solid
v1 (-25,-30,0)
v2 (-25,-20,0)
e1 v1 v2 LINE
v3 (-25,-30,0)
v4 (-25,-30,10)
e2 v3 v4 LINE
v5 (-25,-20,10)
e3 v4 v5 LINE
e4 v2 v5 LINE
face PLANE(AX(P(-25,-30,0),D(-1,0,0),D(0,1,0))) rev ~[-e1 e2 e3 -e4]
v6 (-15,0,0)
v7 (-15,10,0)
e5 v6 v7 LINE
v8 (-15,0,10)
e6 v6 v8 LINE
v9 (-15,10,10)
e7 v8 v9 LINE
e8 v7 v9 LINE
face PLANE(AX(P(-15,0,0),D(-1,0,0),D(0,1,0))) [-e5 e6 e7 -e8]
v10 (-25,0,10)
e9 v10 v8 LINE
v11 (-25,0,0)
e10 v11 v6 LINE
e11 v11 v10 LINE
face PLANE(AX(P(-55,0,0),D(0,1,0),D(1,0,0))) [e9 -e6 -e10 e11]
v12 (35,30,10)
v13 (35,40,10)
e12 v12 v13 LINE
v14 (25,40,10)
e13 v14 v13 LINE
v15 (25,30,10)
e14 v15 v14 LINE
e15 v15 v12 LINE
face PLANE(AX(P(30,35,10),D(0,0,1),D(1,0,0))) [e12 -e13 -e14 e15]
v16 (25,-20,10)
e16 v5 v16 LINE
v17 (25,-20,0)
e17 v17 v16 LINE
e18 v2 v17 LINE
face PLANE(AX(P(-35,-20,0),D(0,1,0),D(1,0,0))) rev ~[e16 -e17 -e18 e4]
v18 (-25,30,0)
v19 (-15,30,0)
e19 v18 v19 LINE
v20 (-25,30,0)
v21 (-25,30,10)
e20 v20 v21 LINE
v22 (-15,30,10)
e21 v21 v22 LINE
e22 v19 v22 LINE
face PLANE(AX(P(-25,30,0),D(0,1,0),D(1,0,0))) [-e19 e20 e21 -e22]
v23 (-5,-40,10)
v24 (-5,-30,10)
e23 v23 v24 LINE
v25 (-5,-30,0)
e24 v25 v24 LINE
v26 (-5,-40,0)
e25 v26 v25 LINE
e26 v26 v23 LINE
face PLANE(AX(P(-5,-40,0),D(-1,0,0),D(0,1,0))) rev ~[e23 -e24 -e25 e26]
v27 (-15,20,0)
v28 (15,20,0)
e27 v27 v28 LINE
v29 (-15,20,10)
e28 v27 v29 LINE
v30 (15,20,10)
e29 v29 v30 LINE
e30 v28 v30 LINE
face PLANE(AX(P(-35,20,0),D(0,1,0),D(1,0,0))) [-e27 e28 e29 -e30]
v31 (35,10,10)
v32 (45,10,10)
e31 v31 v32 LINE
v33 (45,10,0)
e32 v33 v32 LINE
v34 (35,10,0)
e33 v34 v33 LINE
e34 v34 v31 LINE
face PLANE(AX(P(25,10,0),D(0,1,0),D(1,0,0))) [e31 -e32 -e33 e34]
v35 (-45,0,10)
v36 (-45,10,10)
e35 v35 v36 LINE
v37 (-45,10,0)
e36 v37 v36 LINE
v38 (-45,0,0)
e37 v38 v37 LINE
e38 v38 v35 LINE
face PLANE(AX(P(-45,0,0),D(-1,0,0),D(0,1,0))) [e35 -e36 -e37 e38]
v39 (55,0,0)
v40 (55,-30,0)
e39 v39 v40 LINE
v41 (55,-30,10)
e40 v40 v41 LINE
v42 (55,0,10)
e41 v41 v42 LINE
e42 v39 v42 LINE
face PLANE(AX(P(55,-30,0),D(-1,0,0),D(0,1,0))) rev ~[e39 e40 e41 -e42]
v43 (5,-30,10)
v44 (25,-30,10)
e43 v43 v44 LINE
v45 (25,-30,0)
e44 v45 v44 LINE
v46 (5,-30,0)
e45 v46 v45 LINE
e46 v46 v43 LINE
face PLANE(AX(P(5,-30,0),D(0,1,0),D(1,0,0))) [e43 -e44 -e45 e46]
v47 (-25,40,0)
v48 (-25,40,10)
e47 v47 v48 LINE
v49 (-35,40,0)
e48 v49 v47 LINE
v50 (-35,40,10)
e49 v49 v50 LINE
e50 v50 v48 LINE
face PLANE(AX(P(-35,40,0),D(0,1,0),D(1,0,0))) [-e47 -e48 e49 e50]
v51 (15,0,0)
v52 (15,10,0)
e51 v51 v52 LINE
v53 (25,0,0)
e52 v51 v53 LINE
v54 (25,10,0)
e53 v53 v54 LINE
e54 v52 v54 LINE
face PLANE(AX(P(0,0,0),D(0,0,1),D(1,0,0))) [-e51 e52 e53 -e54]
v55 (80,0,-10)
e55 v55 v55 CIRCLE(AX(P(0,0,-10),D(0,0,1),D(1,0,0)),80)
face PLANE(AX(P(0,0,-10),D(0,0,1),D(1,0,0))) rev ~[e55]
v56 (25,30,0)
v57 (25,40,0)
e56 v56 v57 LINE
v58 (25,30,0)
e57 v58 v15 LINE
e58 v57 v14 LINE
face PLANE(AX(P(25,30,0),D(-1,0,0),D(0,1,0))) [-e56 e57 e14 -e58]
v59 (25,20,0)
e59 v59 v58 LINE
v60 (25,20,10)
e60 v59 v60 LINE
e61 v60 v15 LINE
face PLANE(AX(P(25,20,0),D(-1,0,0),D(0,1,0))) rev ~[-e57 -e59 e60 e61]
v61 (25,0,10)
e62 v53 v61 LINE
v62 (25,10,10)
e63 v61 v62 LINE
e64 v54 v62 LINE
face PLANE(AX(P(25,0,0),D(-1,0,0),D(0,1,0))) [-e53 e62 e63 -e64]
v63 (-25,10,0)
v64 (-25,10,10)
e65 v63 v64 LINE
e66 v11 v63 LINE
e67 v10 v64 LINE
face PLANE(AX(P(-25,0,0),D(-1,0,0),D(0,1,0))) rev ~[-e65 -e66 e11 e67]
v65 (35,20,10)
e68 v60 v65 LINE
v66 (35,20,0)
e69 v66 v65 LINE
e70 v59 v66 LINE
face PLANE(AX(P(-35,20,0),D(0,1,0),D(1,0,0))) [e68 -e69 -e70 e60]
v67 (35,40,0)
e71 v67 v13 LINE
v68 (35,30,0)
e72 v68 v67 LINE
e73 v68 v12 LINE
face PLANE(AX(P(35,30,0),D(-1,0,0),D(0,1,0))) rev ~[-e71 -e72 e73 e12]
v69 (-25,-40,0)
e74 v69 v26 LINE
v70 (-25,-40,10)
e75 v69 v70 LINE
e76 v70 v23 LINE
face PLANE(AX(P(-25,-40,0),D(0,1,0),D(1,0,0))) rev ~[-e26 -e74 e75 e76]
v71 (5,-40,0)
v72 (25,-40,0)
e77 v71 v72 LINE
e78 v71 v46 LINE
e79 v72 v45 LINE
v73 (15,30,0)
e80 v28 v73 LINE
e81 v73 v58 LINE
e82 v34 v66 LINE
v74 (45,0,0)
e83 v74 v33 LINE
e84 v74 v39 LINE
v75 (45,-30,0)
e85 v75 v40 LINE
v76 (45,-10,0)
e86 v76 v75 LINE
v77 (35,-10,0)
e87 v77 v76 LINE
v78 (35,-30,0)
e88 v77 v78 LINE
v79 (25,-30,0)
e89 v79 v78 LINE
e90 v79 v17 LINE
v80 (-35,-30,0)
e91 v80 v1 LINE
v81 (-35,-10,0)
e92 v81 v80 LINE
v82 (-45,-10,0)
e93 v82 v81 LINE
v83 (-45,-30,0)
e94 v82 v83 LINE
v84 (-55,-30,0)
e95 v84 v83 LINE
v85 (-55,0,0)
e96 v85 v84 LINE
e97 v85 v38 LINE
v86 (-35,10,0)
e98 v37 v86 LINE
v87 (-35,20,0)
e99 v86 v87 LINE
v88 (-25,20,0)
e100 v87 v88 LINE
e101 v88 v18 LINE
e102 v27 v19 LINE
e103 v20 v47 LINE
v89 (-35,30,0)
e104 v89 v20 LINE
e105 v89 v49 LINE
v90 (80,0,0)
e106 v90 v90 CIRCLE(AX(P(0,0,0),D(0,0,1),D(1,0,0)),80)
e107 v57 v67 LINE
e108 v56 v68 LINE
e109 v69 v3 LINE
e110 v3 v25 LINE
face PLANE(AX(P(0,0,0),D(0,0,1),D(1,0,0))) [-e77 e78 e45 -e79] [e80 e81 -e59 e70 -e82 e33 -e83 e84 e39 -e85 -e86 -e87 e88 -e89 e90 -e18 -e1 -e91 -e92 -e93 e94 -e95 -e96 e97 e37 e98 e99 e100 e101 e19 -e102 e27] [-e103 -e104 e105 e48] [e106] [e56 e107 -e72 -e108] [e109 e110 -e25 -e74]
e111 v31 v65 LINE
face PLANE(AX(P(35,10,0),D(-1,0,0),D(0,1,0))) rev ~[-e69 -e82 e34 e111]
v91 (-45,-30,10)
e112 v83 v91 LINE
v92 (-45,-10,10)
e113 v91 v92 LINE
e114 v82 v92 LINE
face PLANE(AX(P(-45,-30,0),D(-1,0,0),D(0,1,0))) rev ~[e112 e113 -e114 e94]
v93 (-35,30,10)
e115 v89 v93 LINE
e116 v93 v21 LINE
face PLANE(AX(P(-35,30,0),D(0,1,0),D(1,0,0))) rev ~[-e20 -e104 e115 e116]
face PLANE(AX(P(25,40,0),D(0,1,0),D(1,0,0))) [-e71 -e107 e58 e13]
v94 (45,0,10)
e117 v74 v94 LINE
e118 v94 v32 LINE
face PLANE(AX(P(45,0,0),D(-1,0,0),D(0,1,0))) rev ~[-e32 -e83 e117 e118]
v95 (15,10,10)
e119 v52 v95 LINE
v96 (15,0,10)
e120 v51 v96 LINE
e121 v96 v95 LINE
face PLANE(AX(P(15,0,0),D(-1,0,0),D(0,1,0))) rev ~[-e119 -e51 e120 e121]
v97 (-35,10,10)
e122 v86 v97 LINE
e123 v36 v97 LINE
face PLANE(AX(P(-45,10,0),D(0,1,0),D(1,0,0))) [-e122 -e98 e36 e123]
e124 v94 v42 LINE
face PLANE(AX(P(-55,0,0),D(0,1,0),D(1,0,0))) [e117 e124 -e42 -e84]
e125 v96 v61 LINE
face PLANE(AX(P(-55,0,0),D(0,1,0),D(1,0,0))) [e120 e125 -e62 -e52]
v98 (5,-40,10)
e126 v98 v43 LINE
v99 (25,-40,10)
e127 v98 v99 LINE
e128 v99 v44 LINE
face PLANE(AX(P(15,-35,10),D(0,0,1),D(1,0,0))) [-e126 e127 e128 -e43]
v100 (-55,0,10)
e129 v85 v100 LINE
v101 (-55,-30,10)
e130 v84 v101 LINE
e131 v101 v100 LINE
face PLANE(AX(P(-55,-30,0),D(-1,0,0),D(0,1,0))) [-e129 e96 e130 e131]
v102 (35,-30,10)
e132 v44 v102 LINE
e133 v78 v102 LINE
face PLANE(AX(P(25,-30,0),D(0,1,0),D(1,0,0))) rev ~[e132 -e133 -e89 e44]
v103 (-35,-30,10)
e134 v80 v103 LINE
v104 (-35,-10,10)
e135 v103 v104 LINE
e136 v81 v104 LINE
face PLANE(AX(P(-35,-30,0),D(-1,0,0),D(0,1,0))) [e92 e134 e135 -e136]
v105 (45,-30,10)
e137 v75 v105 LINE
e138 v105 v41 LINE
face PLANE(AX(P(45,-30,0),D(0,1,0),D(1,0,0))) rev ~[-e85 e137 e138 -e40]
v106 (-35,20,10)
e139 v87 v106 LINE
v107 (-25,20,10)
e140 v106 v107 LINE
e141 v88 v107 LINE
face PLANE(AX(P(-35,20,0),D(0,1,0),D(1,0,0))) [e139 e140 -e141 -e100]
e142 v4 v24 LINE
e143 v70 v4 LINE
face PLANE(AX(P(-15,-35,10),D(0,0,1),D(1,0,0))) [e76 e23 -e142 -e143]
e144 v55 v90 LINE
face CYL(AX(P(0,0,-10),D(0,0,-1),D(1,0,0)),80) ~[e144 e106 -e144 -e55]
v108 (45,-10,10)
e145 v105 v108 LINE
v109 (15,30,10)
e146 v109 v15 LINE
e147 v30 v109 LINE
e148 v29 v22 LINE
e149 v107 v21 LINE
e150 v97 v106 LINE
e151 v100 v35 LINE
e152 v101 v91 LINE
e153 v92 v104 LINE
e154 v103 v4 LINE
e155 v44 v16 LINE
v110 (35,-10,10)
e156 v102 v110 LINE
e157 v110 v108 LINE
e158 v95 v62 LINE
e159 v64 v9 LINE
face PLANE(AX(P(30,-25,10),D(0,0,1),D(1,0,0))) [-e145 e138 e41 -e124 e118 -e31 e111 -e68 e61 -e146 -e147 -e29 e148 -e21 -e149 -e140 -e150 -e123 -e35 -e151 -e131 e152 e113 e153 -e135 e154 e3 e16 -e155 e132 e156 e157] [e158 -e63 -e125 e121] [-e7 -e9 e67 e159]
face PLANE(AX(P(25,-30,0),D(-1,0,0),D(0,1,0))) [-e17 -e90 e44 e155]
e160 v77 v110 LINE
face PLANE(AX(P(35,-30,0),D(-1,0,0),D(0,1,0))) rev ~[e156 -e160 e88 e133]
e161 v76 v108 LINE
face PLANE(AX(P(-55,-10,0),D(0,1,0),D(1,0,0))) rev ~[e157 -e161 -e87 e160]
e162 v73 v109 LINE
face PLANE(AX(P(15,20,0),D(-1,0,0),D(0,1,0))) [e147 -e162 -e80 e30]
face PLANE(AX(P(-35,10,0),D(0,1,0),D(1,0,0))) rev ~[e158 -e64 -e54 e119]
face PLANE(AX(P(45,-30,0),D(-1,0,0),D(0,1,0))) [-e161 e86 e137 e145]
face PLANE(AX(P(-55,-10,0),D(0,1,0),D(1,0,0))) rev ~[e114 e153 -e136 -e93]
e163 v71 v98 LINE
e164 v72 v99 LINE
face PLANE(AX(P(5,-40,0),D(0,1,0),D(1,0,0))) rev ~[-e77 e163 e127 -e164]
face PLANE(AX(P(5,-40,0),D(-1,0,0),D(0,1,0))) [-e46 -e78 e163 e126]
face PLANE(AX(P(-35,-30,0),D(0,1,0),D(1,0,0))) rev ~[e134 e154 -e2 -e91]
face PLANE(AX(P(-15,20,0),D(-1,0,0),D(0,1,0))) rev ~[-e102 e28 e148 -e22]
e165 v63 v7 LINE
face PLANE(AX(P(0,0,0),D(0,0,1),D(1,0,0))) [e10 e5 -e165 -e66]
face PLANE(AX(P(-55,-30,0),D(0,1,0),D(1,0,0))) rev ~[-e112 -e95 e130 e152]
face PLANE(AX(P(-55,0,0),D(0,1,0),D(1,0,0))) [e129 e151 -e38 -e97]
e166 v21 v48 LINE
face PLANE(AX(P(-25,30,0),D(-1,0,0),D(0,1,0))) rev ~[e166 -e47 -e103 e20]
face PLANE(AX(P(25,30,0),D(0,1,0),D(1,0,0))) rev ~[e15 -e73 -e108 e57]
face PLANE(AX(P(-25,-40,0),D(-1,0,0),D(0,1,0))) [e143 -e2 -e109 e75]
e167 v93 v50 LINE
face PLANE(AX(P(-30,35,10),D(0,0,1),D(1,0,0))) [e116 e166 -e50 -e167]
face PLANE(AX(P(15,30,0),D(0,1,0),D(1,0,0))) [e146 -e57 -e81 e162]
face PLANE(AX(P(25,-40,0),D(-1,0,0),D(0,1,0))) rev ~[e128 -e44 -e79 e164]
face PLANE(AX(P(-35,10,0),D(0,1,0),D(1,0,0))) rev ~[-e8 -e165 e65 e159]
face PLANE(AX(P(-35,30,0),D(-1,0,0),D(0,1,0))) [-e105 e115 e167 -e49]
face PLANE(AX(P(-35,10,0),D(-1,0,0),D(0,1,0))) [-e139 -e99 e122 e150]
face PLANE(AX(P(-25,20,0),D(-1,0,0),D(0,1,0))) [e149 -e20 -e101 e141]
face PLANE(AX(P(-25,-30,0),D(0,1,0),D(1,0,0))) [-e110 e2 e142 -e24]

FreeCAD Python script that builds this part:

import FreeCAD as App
import Part
import Sketcher
from FreeCAD import Vector

doc = App.newDocument("Part")
body = doc.addObject("PartDesign::Body", "Body")

sketch1 = body.newObject("Sketcher::SketchObject", "Sketch")
sketch1.AttachmentSupport = (doc.getObject("XY_Plane"), [""])
sketch1.MapMode = "FlatFace"
sketch1.AttachmentOffset = App.Placement(Vector(0, 0, -10), App.Rotation())
sketch1.addGeometry(Part.Circle(Vector(0, 0, 0), Vector(0, 0, 1), 80), False)
sketch1.addConstraint([
    Sketcher.Constraint("Coincident", 0, 3, -1, 1),
    Sketcher.Constraint("Diameter", 0, 160.0),
])
pad1 = body.newObject("PartDesign::Pad", "Pad")
pad1.Profile = sketch1
pad1.Length = 10
body2 = doc.addObject("PartDesign::Body", "Body001")

sketch2 = body2.newObject("Sketcher::SketchObject", "Sketch001")
sketch2.AttachmentSupport = (doc.getObject("XY_Plane001"), [""])
sketch2.MapMode = "FlatFace"
sketch2.addGeometry([
    Part.LineSegment(Vector(50, 0, 0), Vector(50, -10, 0)),
    Part.LineSegment(Vector(50, -10, 0), Vector(60, -10, 0)),
    Part.LineSegment(Vector(60, -10, 0), Vector(60, 0, 0)),
    Part.LineSegment(Vector(60, 0, 0), Vector(50, 0, 0)),
], False)
sketch2.addConstraint([
    Sketcher.Constraint("Coincident", 0, 2, 1, 1),
    Sketcher.Constraint("Coincident", 1, 2, 2, 1),
    Sketcher.Constraint("Coincident", 2, 2, 3, 1),
    Sketcher.Constraint("Coincident", 3, 2, 0, 1),
    Sketcher.Constraint("Vertical", 0),
    Sketcher.Constraint("Horizontal", 1),
    Sketcher.Constraint("Vertical", 2),
    Sketcher.Constraint("Horizontal", 3),
    Sketcher.Constraint("PointOnObject", 2, 2, -1),
    Sketcher.Constraint("Equal", 3, 0),
    Sketcher.Constraint("DistanceX", 1, 1, 1, 2, 10.0),
    Sketcher.Constraint("DistanceX", -1, 1, 0, 2, 50.0),
])
pad2 = body2.newObject("PartDesign::Pad", "Pad001")
pad2.Profile = sketch2
pad2.Length = 10
body3 = doc.addObject("PartDesign::Body", "Body002")

sketch3 = body3.newObject("Sketcher::SketchObject", "Sketch002")
sketch3.AttachmentSupport = (doc.getObject("XY_Plane002"), [""])
sketch3.MapMode = "FlatFace"
sketch3.addGeometry([
    Part.LineSegment(Vector(-10, -20, 0), Vector(-10, -30, 0)),
    Part.LineSegment(Vector(-10, -30, 0), Vector(10, -30, 0)),
    Part.LineSegment(Vector(10, -30, 0), Vector(10, -20, 0)),
    Part.LineSegment(Vector(10, -20, 0), Vector(-10, -20, 0)),
], False)
sketch3.addConstraint([
    Sketcher.Constraint("Coincident", 0, 2, 1, 1),
    Sketcher.Constraint("Coincident", 1, 2, 2, 1),
    Sketcher.Constraint("Coincident", 2, 2, 3, 1),
    Sketcher.Constraint("Coincident", 3, 2, 0, 1),
    Sketcher.Constraint("Vertical", 0),
    Sketcher.Constraint("Horizontal", 1),
    Sketcher.Constraint("Vertical", 2),
    Sketcher.Constraint("Horizontal", 3),
    Sketcher.Constraint("DistanceX", 1, 1, 1, 2, 20.0),
    Sketcher.Constraint("DistanceY", 0, 2, 0, 1, 10.0),
    Sketcher.Constraint("DistanceX", 0, 2, -1, 1, 10.0),
    Sketcher.Constraint("DistanceY", 0, 2, -1, 1, 30.0),
])
pad3 = body3.newObject("PartDesign::Pad", "Pad002")
pad3.Profile = sketch3
pad3.Length = 10
body4 = doc.addObject("PartDesign::Body", "Body003")

sketch4 = body4.newObject("Sketcher::SketchObject", "Sketch003")
sketch4.AttachmentSupport = (doc.getObject("XY_Plane003"), [""])
sketch4.MapMode = "FlatFace"
sketch4.addGeometry([
    Part.LineSegment(Vector(0, -40, 0), Vector(0, -50, 0)),
    Part.LineSegment(Vector(0, -50, 0), Vector(70, -50, 0)),
    Part.LineSegment(Vector(70, -50, 0), Vector(70, -40, 0)),
    Part.LineSegment(Vector(70, -40, 0), Vector(0, -40, 0)),
], False)
sketch4.addConstraint([
    Sketcher.Constraint("Coincident", 0, 2, 1, 1),
    Sketcher.Constraint("Coincident", 1, 2, 2, 1),
    Sketcher.Constraint("Coincident", 2, 2, 3, 1),
    Sketcher.Constraint("Coincident", 3, 2, 0, 1),
    Sketcher.Constraint("Vertical", 0),
    Sketcher.Constraint("Horizontal", 1),
    Sketcher.Constraint("Vertical", 2),
    Sketcher.Constraint("Horizontal", 3),
    Sketcher.Constraint("PointOnObject", 0, 2, -2),
    Sketcher.Constraint("DistanceX", 1, 1, 1, 2, 70.0),
    Sketcher.Constraint("DistanceY", 0, 2, 0, 1, 10.0),
    Sketcher.Constraint("DistanceY", 0, 2, -1, 1, 50.0),
])
pad4 = body4.newObject("PartDesign::Pad", "Pad003")
pad4.Profile = sketch4
pad4.Length = 10
body5 = doc.addObject("PartDesign::Body", "Body004")

sketch5 = body5.newObject("Sketcher::SketchObject", "Sketch004")
sketch5.AttachmentSupport = (doc.getObject("XY_Plane004"), [""])
sketch5.MapMode = "FlatFace"
sketch5.addGeometry([
    Part.LineSegment(Vector(40, -60, 0), Vector(40, -70, 0)),
    Part.LineSegment(Vector(40, -70, 0), Vector(60, -70, 0)),
    Part.LineSegment(Vector(60, -70, 0), Vector(60, -60, 0)),
    Part.LineSegment(Vector(60, -60, 0), Vector(40, -60, 0)),
], False)
sketch5.addConstraint([
    Sketcher.Constraint("Coincident", 0, 2, 1, 1),
    Sketcher.Constraint("Coincident", 1, 2, 2, 1),
    Sketcher.Constraint("Coincident", 2, 2, 3, 1),
    Sketcher.Constraint("Coincident", 3, 2, 0, 1),
    Sketcher.Constraint("Vertical", 0),
    Sketcher.Constraint("Horizontal", 1),
    Sketcher.Constraint("Vertical", 2),
    Sketcher.Constraint("Horizontal", 3),
    Sketcher.Constraint("DistanceX", 1, 1, 1, 2, 20.0),
    Sketcher.Constraint("DistanceY", 0, 2, 0, 1, 10.0),
    Sketcher.Constraint("DistanceX", -1, 1, 0, 2, 40.0),
    Sketcher.Constraint("DistanceY", 0, 2, -1, 1, 70.0),
])
pad5 = body5.newObject("PartDesign::Pad", "Pad004")
pad5.Profile = sketch5
pad5.Length = 10
body6 = doc.addObject("PartDesign::Body", "Body005")

sketch6 = body6.newObject("Sketcher::SketchObject", "Sketch005")
sketch6.AttachmentSupport = (doc.getObject("XY_Plane005"), [""])
sketch6.MapMode = "FlatFace"
sketch6.addGeometry([
    Part.LineSegment(Vector(10, 0, 0), Vector(10, -10, 0)),
    Part.LineSegment(Vector(10, -10, 0), Vector(20, -10, 0)),
    Part.LineSegment(Vector(20, -10, 0), Vector(20, 0, 0)),
    Part.LineSegment(Vector(20, 0, 0), Vector(10, 0, 0)),
], False)
sketch6.addConstraint([
    Sketcher.Constraint("Coincident", 0, 2, 1, 1),
    Sketcher.Constraint("Coincident", 1, 2, 2, 1),
    Sketcher.Constraint("Coincident", 2, 2, 3, 1),
    Sketcher.Constraint("Coincident", 3, 2, 0, 1),
    Sketcher.Constraint("Vertical", 0),
    Sketcher.Constraint("Horizontal", 1),
    Sketcher.Constraint("Vertical", 2),
    Sketcher.Constraint("Horizontal", 3),
    Sketcher.Constraint("PointOnObject", 2, 2, -1),
    Sketcher.Constraint("Equal", 3, 0),
    Sketcher.Constraint("DistanceX", 1, 1, 1, 2, 10.0),
    Sketcher.Constraint("DistanceX", -1, 1, 0, 2, 10.0),
])
pad6 = body6.newObject("PartDesign::Pad", "Pad005")
pad6.Profile = sketch6
pad6.Length = 10
body7 = doc.addObject("PartDesign::Body", "Body006")

sketch7 = body7.newObject("Sketcher::SketchObject", "Sketch006")
sketch7.AttachmentSupport = (doc.getObject("XY_Plane006"), [""])
sketch7.MapMode = "FlatFace"
sketch7.addGeometry([
    Part.LineSegment(Vector(-20, -30, 0), Vector(-20, -40, 0)),
    Part.LineSegment(Vector(-20, -40, 0), Vector(90, -40, 0)),
    Part.LineSegment(Vector(90, -40, 0), Vector(90, -30, 0)),
    Part.LineSegment(Vector(90, -30, 0), Vector(-20, -30, 0)),
], False)
sketch7.addConstraint([
    Sketcher.Constraint("Coincident", 0, 2, 1, 1),
    Sketcher.Constraint("Coincident", 1, 2, 2, 1),
    Sketcher.Constraint("Coincident", 2, 2, 3, 1),
    Sketcher.Constraint("Coincident", 3, 2, 0, 1),
    Sketcher.Constraint("Vertical", 0),
    Sketcher.Constraint("Horizontal", 1),
    Sketcher.Constraint("Vertical", 2),
    Sketcher.Constraint("Horizontal", 3),
    Sketcher.Constraint("DistanceX", 1, 1, 1, 2, 110.0),
    Sketcher.Constraint("DistanceY", 0, 2, 0, 1, 10.0),
    Sketcher.Constraint("DistanceX", 0, 2, -1, 1, 20.0),
    Sketcher.Constraint("DistanceY", 0, 2, -1, 1, 40.0),
])
pad7 = body7.newObject("PartDesign::Pad", "Pad006")
pad7.Profile = sketch7
pad7.Length = 10
body8 = doc.addObject("PartDesign::Body", "Body007")

sketch8 = body8.newObject("Sketcher::SketchObject", "Sketch007")
sketch8.AttachmentSupport = (doc.getObject("XY_Plane007"), [""])
sketch8.MapMode = "FlatFace"
sketch8.addGeometry([
    Part.LineSegment(Vector(-20, -40, 0), Vector(-20, -50, 0)),
    Part.LineSegment(Vector(-20, -50, 0), Vector(-10, -50, 0)),
    Part.LineSegment(Vector(-10, -50, 0), Vector(-10, -40, 0)),
    Part.LineSegment(Vector(-10, -40, 0), Vector(-20, -40, 0)),
], False)
sketch8.addConstraint([
    Sketcher.Constraint("Coincident", 0, 2, 1, 1),
    Sketcher.Constraint("Coincident", 1, 2, 2, 1),
    Sketcher.Constraint("Coincident", 2, 2, 3, 1),
    Sketcher.Constraint("Coincident", 3, 2, 0, 1),
    Sketcher.Constraint("Vertical", 0),
    Sketcher.Constraint("Horizontal", 1),
    Sketcher.Constraint("Vertical", 2),
    Sketcher.Constraint("Horizontal", 3),
    Sketcher.Constraint("Equal", 3, 0),
    Sketcher.Constraint("DistanceX", 1, 1, 1, 2, 10.0),
    Sketcher.Constraint("DistanceX", 0, 2, -1, 1, 20.0),
    Sketcher.Constraint("DistanceY", 0, 2, -1, 1, 50.0),
])
pad8 = body8.newObject("PartDesign::Pad", "Pad007")
pad8.Profile = sketch8
pad8.Length = 10
body9 = doc.addObject("PartDesign::Body", "Body008")

sketch9 = body9.newObject("Sketcher::SketchObject", "Sketch008")
sketch9.AttachmentSupport = (doc.getObject("XY_Plane008"), [""])
sketch9.MapMode = "FlatFace"
sketch9.addGeometry([
    Part.LineSegment(Vector(80, -40, 0), Vector(80, -50, 0)),
    Part.LineSegment(Vector(80, -50, 0), Vector(90, -50, 0)),
    Part.LineSegment(Vector(90, -50, 0), Vector(90, -40, 0)),
    Part.LineSegment(Vector(90, -40, 0), Vector(80, -40, 0)),
], False)
sketch9.addConstraint([
    Sketcher.Constraint("Coincident", 0, 2, 1, 1),
    Sketcher.Constraint("Coincident", 1, 2, 2, 1),
    Sketcher.Constraint("Coincident", 2, 2, 3, 1),
    Sketcher.Constraint("Coincident", 3, 2, 0, 1),
    Sketcher.Constraint("Vertical", 0),
    Sketcher.Constraint("Horizontal", 1),
    Sketcher.Constraint("Vertical", 2),
    Sketcher.Constraint("Horizontal", 3),
    Sketcher.Constraint("Equal", 3, 0),
    Sketcher.Constraint("DistanceX", 1, 1, 1, 2, 10.0),
    Sketcher.Constraint("DistanceX", -1, 1, 0, 2, 80.0),
    Sketcher.Constraint("DistanceY", 0, 2, -1, 1, 50.0),
])
pad9 = body9.newObject("PartDesign::Pad", "Pad008")
pad9.Profile = sketch9
pad9.Length = 10
body10 = doc.addObject("PartDesign::Body", "Body009")

sketch10 = body10.newObject("Sketcher::SketchObject", "Sketch009")
sketch10.AttachmentSupport = (doc.getObject("XY_Plane009"), [""])
sketch10.MapMode = "FlatFace"
sketch10.addGeometry([
    Part.LineSegment(Vector(10, -60, 0), Vector(10, -70, 0)),
    Part.LineSegment(Vector(10, -70, 0), Vector(30, -70, 0)),
    Part.LineSegment(Vector(30, -70, 0), Vector(30, -60, 0)),
    Part.LineSegment(Vector(30, -60, 0), Vector(10, -60, 0)),
], False)
sketch10.addConstraint([
    Sketcher.Constraint("Coincident", 0, 2, 1, 1),
    Sketcher.Constraint("Coincident", 1, 2, 2, 1),
    Sketcher.Constraint("Coincident", 2, 2, 3, 1),
    Sketcher.Constraint("Coincident", 3, 2, 0, 1),
    Sketcher.Constraint("Vertical", 0),
    Sketcher.Constraint("Horizontal", 1),
    Sketcher.Constraint("Vertical", 2),
    Sketcher.Constraint("Horizontal", 3),
    Sketcher.Constraint("DistanceX", 1, 1, 1, 2, 20.0),
    Sketcher.Constraint("DistanceY", 0, 2, 0, 1, 10.0),
    Sketcher.Constraint("DistanceX", -1, 1, 0, 2, 10.0),
    Sketcher.Constraint("DistanceY", 0, 2, -1, 1, 70.0),
])
pad10 = body10.newObject("PartDesign::Pad", "Pad009")
pad10.Profile = sketch10
pad10.Length = 10
body11 = doc.addObject("PartDesign::Body", "Body010")

sketch11 = body11.newObject("Sketcher::SketchObject", "Sketch010")
sketch11.AttachmentSupport = (doc.getObject("XY_Plane010"), [""])
sketch11.MapMode = "FlatFace"
sketch11.addGeometry([
    Part.LineSegment(Vector(20, -20, 0), Vector(20, -30, 0)),
    Part.LineSegment(Vector(20, -30, 0), Vector(50, -30, 0)),
    Part.LineSegment(Vector(50, -30, 0), Vector(50, -20, 0)),
    Part.LineSegment(Vector(50, -20, 0), Vector(20, -20, 0)),
], False)
sketch11.addConstraint([
    Sketcher.Constraint("Coincident", 0, 2, 1, 1),
    Sketcher.Constraint("Coincident", 1, 2, 2, 1),
    Sketcher.Constraint("Coincident", 2, 2, 3, 1),
    Sketcher.Constraint("Coincident", 3, 2, 0, 1),
    Sketcher.Constraint("Vertical", 0),
    Sketcher.Constraint("Horizontal", 1),
    Sketcher.Constraint("Vertical", 2),
    Sketcher.Constraint("Horizontal", 3),
    Sketcher.Constraint("DistanceX", 1, 1, 1, 2, 30.0),
    Sketcher.Constraint("DistanceY", 0, 2, 0, 1, 10.0),
    Sketcher.Constraint("DistanceX", -1, 1, 0, 2, 20.0),
    Sketcher.Constraint("DistanceY", 0, 2, -1, 1, 30.0),
])
pad11 = body11.newObject("PartDesign::Pad", "Pad010")
pad11.Profile = sketch11
pad11.Length = 10
body12 = doc.addObject("PartDesign::Body", "Body011")

sketch12 = body12.newObject("Sketcher::SketchObject", "Sketch011")
sketch12.AttachmentSupport = (doc.getObject("XY_Plane011"), [""])
sketch12.MapMode = "FlatFace"
sketch12.addGeometry([
    Part.LineSegment(Vector(0, -50, 0), Vector(0, -60, 0)),
    Part.LineSegment(Vector(0, -60, 0), Vector(10, -60, 0)),
    Part.LineSegment(Vector(10, -60, 0), Vector(10, -50, 0)),
    Part.LineSegment(Vector(10, -50, 0), Vector(0, -50, 0)),
], False)
sketch12.addConstraint([
    Sketcher.Constraint("Coincident", 0, 2, 1, 1),
    Sketcher.Constraint("Coincident", 1, 2, 2, 1),
    Sketcher.Constraint("Coincident", 2, 2, 3, 1),
    Sketcher.Constraint("Coincident", 3, 2, 0, 1),
    Sketcher.Constraint("Vertical", 0),
    Sketcher.Constraint("Horizontal", 1),
    Sketcher.Constraint("Vertical", 2),
    Sketcher.Constraint("Horizontal", 3),
    Sketcher.Constraint("PointOnObject", 0, 2, -2),
    Sketcher.Constraint("Equal", 3, 0),
    Sketcher.Constraint("DistanceX", 1, 1, 1, 2, 10.0),
    Sketcher.Constraint("DistanceY", 0, 2, -1, 1, 60.0),
])
pad12 = body12.newObject("PartDesign::Pad", "Pad011")
pad12.Profile = sketch12
pad12.Length = 10
body13 = doc.addObject("PartDesign::Body", "Body012")

sketch13 = body13.newObject("Sketcher::SketchObject", "Sketch012")
sketch13.AttachmentSupport = (doc.getObject("XY_Plane012"), [""])
sketch13.MapMode = "FlatFace"
sketch13.addGeometry([
    Part.LineSegment(Vector(80, -50, 0), Vector(80, -60, 0)),
    Part.LineSegment(Vector(80, -60, 0), Vector(90, -60, 0)),
    Part.LineSegment(Vector(90, -60, 0), Vector(90, -50, 0)),
    Part.LineSegment(Vector(90, -50, 0), Vector(80, -50, 0)),
], False)
sketch13.addConstraint([
    Sketcher.Constraint("Coincident", 0, 2, 1, 1),
    Sketcher.Constraint("Coincident", 1, 2, 2, 1),
    Sketcher.Constraint("Coincident", 2, 2, 3, 1),
    Sketcher.Constraint("Coincident", 3, 2, 0, 1),
    Sketcher.Constraint("Vertical", 0),
    Sketcher.Constraint("Horizontal", 1),
    Sketcher.Constraint("Vertical", 2),
    Sketcher.Constraint("Horizontal", 3),
    Sketcher.Constraint("Equal", 3, 0),
    Sketcher.Constraint("DistanceX", 1, 1, 1, 2, 10.0),
    Sketcher.Constraint("DistanceX", -1, 1, 0, 2, 80.0),
    Sketcher.Constraint("DistanceY", 0, 2, -1, 1, 60.0),
])
pad13 = body13.newObject("PartDesign::Pad", "Pad012")
pad13.Profile = sketch13
pad13.Length = 10
body14 = doc.addObject("PartDesign::Body", "Body013")

sketch14 = body14.newObject("Sketcher::SketchObject", "Sketch013")
sketch14.AttachmentSupport = (doc.getObject("XY_Plane013"), [""])
sketch14.MapMode = "FlatFace"
sketch14.addGeometry([
    Part.LineSegment(Vector(60, -20, 0), Vector(60, -30, 0)),
    Part.LineSegment(Vector(60, -30, 0), Vector(80, -30, 0)),
    Part.LineSegment(Vector(80, -30, 0), Vector(80, -20, 0)),
    Part.LineSegment(Vector(80, -20, 0), Vector(60, -20, 0)),
], False)
sketch14.addConstraint([
    Sketcher.Constraint("Coincident", 0, 2, 1, 1),
    Sketcher.Constraint("Coincident", 1, 2, 2, 1),
    Sketcher.Constraint("Coincident", 2, 2, 3, 1),
    Sketcher.Constraint("Coincident", 3, 2, 0, 1),
    Sketcher.Constraint("Vertical", 0),
    Sketcher.Constraint("Horizontal", 1),
    Sketcher.Constraint("Vertical", 2),
    Sketcher.Constraint("Horizontal", 3),
    Sketcher.Constraint("DistanceX", 1, 1, 1, 2, 20.0),
    Sketcher.Constraint("DistanceY", 0, 2, 0, 1, 10.0),
    Sketcher.Constraint("DistanceX", -1, 1, 0, 2, 60.0),
    Sketcher.Constraint("DistanceY", 0, 2, -1, 1, 30.0),
])
pad14 = body14.newObject("PartDesign::Pad", "Pad013")
pad14.Profile = sketch14
pad14.Length = 10
body15 = doc.addObject("PartDesign::Body", "Body014")

sketch15 = body15.newObject("Sketcher::SketchObject", "Sketch014")
sketch15.AttachmentSupport = (doc.getObject("XY_Plane014"), [""])
sketch15.MapMode = "FlatFace"
sketch15.addGeometry([
    Part.LineSegment(Vector(-20, -50, 0), Vector(-20, -60, 0)),
    Part.LineSegment(Vector(-20, -60, 0), Vector(-10, -60, 0)),
    Part.LineSegment(Vector(-10, -60, 0), Vector(-10, -50, 0)),
    Part.LineSegment(Vector(-10, -50, 0), Vector(-20, -50, 0)),
], False)
sketch15.addConstraint([
    Sketcher.Constraint("Coincident", 0, 2, 1, 1),
    Sketcher.Constraint("Coincident", 1, 2, 2, 1),
    Sketcher.Constraint("Coincident", 2, 2, 3, 1),
    Sketcher.Constraint("Coincident", 3, 2, 0, 1),
    Sketcher.Constraint("Vertical", 0),
    Sketcher.Constraint("Horizontal", 1),
    Sketcher.Constraint("Vertical", 2),
    Sketcher.Constraint("Horizontal", 3),
    Sketcher.Constraint("Equal", 3, 0),
    Sketcher.Constraint("DistanceX", 1, 1, 1, 2, 10.0),
    Sketcher.Constraint("DistanceX", 0, 2, -1, 1, 20.0),
    Sketcher.Constraint("DistanceY", 0, 2, -1, 1, 60.0),
])
pad15 = body15.newObject("PartDesign::Pad", "Pad014")
pad15.Profile = sketch15
pad15.Length = 10
body16 = doc.addObject("PartDesign::Body", "Body015")

sketch16 = body16.newObject("Sketcher::SketchObject", "Sketch015")
sketch16.AttachmentSupport = (doc.getObject("XY_Plane015"), [""])
sketch16.MapMode = "FlatFace"
sketch16.addGeometry([
    Part.LineSegment(Vector(0, -10, 0), Vector(0, -20, 0)),
    Part.LineSegment(Vector(0, -20, 0), Vector(70, -20, 0)),
    Part.LineSegment(Vector(70, -20, 0), Vector(70, -10, 0)),
    Part.LineSegment(Vector(70, -10, 0), Vector(0, -10, 0)),
], False)
sketch16.addConstraint([
    Sketcher.Constraint("Coincident", 0, 2, 1, 1),
    Sketcher.Constraint("Coincident", 1, 2, 2, 1),
    Sketcher.Constraint("Coincident", 2, 2, 3, 1),
    Sketcher.Constraint("Coincident", 3, 2, 0, 1),
    Sketcher.Constraint("Vertical", 0),
    Sketcher.Constraint("Horizontal", 1),
    Sketcher.Constraint("Vertical", 2),
    Sketcher.Constraint("Horizontal", 3),
    Sketcher.Constraint("PointOnObject", 0, 2, -2),
    Sketcher.Constraint("DistanceX", 1, 1, 1, 2, 70.0),
    Sketcher.Constraint("DistanceY", 0, 2, 0, 1, 10.0),
    Sketcher.Constraint("DistanceY", 0, 2, -1, 1, 20.0),
])
pad16 = body16.newObject("PartDesign::Pad", "Pad015")
pad16.Profile = sketch16
pad16.Length = 10
body17 = doc.addObject("PartDesign::Body", "Body016")

sketch17 = body17.newObject("Sketcher::SketchObject", "Sketch016")
sketch17.AttachmentSupport = (doc.getObject("XY_Plane016"), [""])
sketch17.MapMode = "FlatFace"
sketch17.addGeometry([
    Part.LineSegment(Vector(60, -50, 0), Vector(60, -60, 0)),
    Part.LineSegment(Vector(60, -60, 0), Vector(70, -60, 0)),
    Part.LineSegment(Vector(70, -60, 0), Vector(70, -50, 0)),
    Part.LineSegment(Vector(70, -50, 0), Vector(60, -50, 0)),
], False)
sketch17.addConstraint([
    Sketcher.Constraint("Coincident", 0, 2, 1, 1),
    Sketcher.Constraint("Coincident", 1, 2, 2, 1),
    Sketcher.Constraint("Coincident", 2, 2, 3, 1),
    Sketcher.Constraint("Coincident", 3, 2, 0, 1),
    Sketcher.Constraint("Vertical", 0),
    Sketcher.Constraint("Horizontal", 1),
    Sketcher.Constraint("Vertical", 2),
    Sketcher.Constraint("Horizontal", 3),
    Sketcher.Constraint("Equal", 3, 0),
    Sketcher.Constraint("DistanceX", 1, 1, 1, 2, 10.0),
    Sketcher.Constraint("DistanceX", -1, 1, 0, 2, 60.0),
    Sketcher.Constraint("DistanceY", 0, 2, -1, 1, 60.0),
])
pad17 = body17.newObject("PartDesign::Pad", "Pad016")
pad17.Profile = sketch17
pad17.Length = 10
body18 = doc.addObject("PartDesign::Body", "Body017")

sketch18 = body18.newObject("Sketcher::SketchObject", "Sketch017")
sketch18.AttachmentSupport = (doc.getObject("XY_Plane017"), [""])
sketch18.MapMode = "FlatFace"
sketch18.addGeometry([
    Part.LineSegment(Vector(60, 10, 0), Vector(60, 0, 0)),
    Part.LineSegment(Vector(60, 0, 0), Vector(70, 0, 0)),
    Part.LineSegment(Vector(70, 0, 0), Vector(70, 10, 0)),
    Part.LineSegment(Vector(70, 10, 0), Vector(60, 10, 0)),
], False)
sketch18.addConstraint([
    Sketcher.Constraint("Coincident", 0, 2, 1, 1),
    Sketcher.Constraint("Coincident", 1, 2, 2, 1),
    Sketcher.Constraint("Coincident", 2, 2, 3, 1),
    Sketcher.Constraint("Coincident", 3, 2, 0, 1),
    Sketcher.Constraint("Vertical", 0),
    Sketcher.Constraint("Horizontal", 1),
    Sketcher.Constraint("Vertical", 2),
    Sketcher.Constraint("Horizontal", 3),
    Sketcher.Constraint("PointOnObject", 0, 2, -1),
    Sketcher.Constraint("Equal", 3, 0),
    Sketcher.Constraint("DistanceX", 1, 1, 1, 2, 10.0),
    Sketcher.Constraint("DistanceX", -1, 1, 0, 2, 60.0),
])
pad18 = body18.newObject("PartDesign::Pad", "Pad017")
pad18.Profile = sketch18
pad18.Length = 10
body19 = doc.addObject("PartDesign::Body", "Body018")
body19.AllowCompound = True

sketch19 = body19.newObject("Sketcher::SketchObject", "Sketch018")
sketch19.AttachmentSupport = (doc.getObject("XY_Plane018"), [""])
sketch19.MapMode = "FlatFace"
sketch19.addGeometry([
    Part.LineSegment(Vector(0, 10, 0), Vector(0, 0, 0)),
    Part.LineSegment(Vector(0, 0, 0), Vector(10, 0, 0)),
    Part.LineSegment(Vector(10, 0, 0), Vector(10, 10, 0)),
    Part.LineSegment(Vector(10, 10, 0), Vector(0, 10, 0)),
], False)
sketch19.addConstraint([
    Sketcher.Constraint("Coincident", 0, 2, 1, 1),
    Sketcher.Constraint("Coincident", 1, 2, 2, 1),
    Sketcher.Constraint("Coincident", 2, 2, 3, 1),
    Sketcher.Constraint("Coincident", 3, 2, 0, 1),
    Sketcher.Constraint("Vertical", 0),
    Sketcher.Constraint("Horizontal", 1),
    Sketcher.Constraint("Vertical", 2),
    Sketcher.Constraint("Horizontal", 3),
    Sketcher.Constraint("Coincident", 0, 2, -1, 1),
    Sketcher.Constraint("Equal", 3, 0),
    Sketcher.Constraint("DistanceX", 1, 1, 1, 2, 10.0),
])
pad19 = body19.newObject("PartDesign::Pad", "Pad018")
pad19.Profile = sketch19
pad19.Length = 10
doc.recompute()

boolean = body19.newObject("PartDesign::Boolean", "Boolean")
boolean.Type = "Fuse"
boolean.addObjects([body2])
doc.recompute()

boolean2 = body19.newObject("PartDesign::Boolean", "Boolean001")
boolean2.Type = "Fuse"
boolean2.addObjects([body3])
doc.recompute()

boolean3 = body19.newObject("PartDesign::Boolean", "Boolean002")
boolean3.Type = "Fuse"
boolean3.addObjects([body4])
doc.recompute()

boolean4 = body19.newObject("PartDesign::Boolean", "Boolean003")
boolean4.Type = "Fuse"
boolean4.addObjects([body5])
doc.recompute()

boolean5 = body19.newObject("PartDesign::Boolean", "Boolean004")
boolean5.Type = "Fuse"
boolean5.addObjects([body6])
doc.recompute()

boolean6 = body19.newObject("PartDesign::Boolean", "Boolean005")
boolean6.Type = "Fuse"
boolean6.addObjects([body7])
doc.recompute()

boolean7 = body19.newObject("PartDesign::Boolean", "Boolean006")
boolean7.Type = "Fuse"
boolean7.addObjects([body8])
doc.recompute()

boolean8 = body19.newObject("PartDesign::Boolean", "Boolean007")
boolean8.Type = "Fuse"
boolean8.addObjects([body9])
doc.recompute()

boolean9 = body19.newObject("PartDesign::Boolean", "Boolean008")
boolean9.Type = "Fuse"
boolean9.addObjects([body10])
doc.recompute()

boolean10 = body19.newObject("PartDesign::Boolean", "Boolean009")
boolean10.Type = "Fuse"
boolean10.addObjects([body11])
doc.recompute()

boolean11 = body19.newObject("PartDesign::Boolean", "Boolean010")
boolean11.Type = "Fuse"
boolean11.addObjects([body12])
doc.recompute()

boolean12 = body19.newObject("PartDesign::Boolean", "Boolean011")
boolean12.Type = "Fuse"
boolean12.addObjects([body13])
doc.recompute()

boolean13 = body19.newObject("PartDesign::Boolean", "Boolean012")
boolean13.Type = "Fuse"
boolean13.addObjects([body14])
doc.recompute()

boolean14 = body19.newObject("PartDesign::Boolean", "Boolean013")
boolean14.Type = "Fuse"
boolean14.addObjects([body15])
doc.recompute()

boolean15 = body19.newObject("PartDesign::Boolean", "Boolean014")
boolean15.Type = "Fuse"
boolean15.addObjects([body16])
doc.recompute()

boolean16 = body19.newObject("PartDesign::Boolean", "Boolean015")
boolean16.Type = "Fuse"
boolean16.addObjects([body17])
doc.recompute()

boolean17 = body19.newObject("PartDesign::Boolean", "Boolean016")
boolean17.Type = "Fuse"
boolean17.addObjects([body18])
body20 = doc.addObject("PartDesign::Body", "Body019")
body20.AllowCompound = True
doc.recompute()

body19.Placement = App.Placement(Vector(-35, 30, 0), App.Rotation(Vector(0, 0, 1), 0))
boolean18 = body20.newObject("PartDesign::Boolean", "Boolean017")
boolean18.Type = "Fuse"
boolean18.addObjects([body19])
doc.recompute()

boolean19 = body20.newObject("PartDesign::Boolean", "Boolean018")
boolean19.Type = "Fuse"
boolean19.addObjects([body])

doc.recompute()
